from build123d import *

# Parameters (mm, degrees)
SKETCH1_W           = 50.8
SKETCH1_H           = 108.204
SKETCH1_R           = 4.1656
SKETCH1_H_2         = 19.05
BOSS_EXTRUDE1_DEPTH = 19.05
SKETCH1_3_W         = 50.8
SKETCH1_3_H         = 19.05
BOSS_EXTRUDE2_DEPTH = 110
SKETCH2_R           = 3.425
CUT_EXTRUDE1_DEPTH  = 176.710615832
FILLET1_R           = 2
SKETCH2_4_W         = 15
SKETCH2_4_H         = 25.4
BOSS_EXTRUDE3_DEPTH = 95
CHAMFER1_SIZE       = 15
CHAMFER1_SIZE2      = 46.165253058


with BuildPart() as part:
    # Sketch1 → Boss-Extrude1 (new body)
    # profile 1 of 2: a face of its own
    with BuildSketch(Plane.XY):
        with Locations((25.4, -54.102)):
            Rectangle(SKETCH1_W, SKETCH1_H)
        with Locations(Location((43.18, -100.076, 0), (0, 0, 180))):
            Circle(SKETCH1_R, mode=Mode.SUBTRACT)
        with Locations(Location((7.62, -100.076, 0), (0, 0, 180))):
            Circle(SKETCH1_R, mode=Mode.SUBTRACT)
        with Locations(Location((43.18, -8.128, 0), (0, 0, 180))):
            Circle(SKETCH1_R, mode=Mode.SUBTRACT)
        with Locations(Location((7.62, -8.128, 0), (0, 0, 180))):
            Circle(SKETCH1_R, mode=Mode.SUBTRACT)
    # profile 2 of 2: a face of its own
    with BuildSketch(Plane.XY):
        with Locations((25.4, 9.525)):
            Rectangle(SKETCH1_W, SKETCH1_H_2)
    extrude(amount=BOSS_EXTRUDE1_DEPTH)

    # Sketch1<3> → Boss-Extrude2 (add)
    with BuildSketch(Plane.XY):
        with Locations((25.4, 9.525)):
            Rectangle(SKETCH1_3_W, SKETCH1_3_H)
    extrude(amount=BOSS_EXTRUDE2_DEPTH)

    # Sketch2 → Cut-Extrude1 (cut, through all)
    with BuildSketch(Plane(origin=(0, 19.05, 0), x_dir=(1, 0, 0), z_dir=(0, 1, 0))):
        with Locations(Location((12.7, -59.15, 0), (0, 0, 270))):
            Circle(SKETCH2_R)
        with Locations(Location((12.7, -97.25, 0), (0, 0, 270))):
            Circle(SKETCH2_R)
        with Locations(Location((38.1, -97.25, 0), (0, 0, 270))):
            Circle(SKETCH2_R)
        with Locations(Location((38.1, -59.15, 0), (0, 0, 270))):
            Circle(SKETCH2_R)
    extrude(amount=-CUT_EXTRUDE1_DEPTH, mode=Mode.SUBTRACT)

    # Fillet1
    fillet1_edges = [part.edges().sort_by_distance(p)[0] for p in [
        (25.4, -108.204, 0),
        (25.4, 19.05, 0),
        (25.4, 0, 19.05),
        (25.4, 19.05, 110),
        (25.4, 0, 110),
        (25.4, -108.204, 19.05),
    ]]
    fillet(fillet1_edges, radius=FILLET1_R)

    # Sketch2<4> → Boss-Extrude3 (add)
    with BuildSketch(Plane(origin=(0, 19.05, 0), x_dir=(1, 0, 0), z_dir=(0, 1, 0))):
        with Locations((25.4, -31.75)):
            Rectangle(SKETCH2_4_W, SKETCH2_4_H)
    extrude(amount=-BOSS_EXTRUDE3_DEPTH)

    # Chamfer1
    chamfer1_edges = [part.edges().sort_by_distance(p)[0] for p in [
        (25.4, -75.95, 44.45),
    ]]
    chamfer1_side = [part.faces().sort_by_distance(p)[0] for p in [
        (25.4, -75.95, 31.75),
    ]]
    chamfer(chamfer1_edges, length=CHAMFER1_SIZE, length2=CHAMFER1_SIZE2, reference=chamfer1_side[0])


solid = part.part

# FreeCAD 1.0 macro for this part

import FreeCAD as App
import Part
import Sketcher
Q = App.Units.Quantity


def edges_at(feature, points):
    """Names of the edges that pass closest to the given points."""
    edges = feature.Shape.Edges
    near = lambda p: min(range(len(edges)), key=lambda i: edges[i].distToShape(Part.Vertex(*p))[0])
    return sorted({f"Edge{near(p) + 1}" for p in points})


def add_polygon(sketch, points):
    """Adds a closed chain of lines whose ends are joined by coincident constraints."""
    first, n = sketch.GeometryCount, len(points)
    for a, b in zip(points, points[1:] + points[:1]):
        sketch.addGeometry(Part.LineSegment(App.Vector(*a, 0), App.Vector(*b, 0)), False)
    for i in range(n):
        sketch.addConstraint(Sketcher.Constraint("Coincident", first + i, 2, first + (i + 1) % n, 1))

doc = App.newDocument("Part")
params = doc.addObject("Spreadsheet::Sheet", "Params")
for row, (alias, value) in enumerate([
    ("sketch1_width", "2 in"),
    ("sketch1_diameter", "0.328 in"),
    ("sketch1_height", "5.01 in"),
    ("pad1_length", "0.75 in"),
    ("sketch2_width", "2 in"),
    ("sketch2_height", "0.75 in"),
    ("pad2_length", "110 mm"),
    ("fillet_radius", "2 mm"),
    ("sketch4_height", "1 in"),
    ("pad3_length", "95 mm"),
    ("chamfer_size", "15 mm"),
    ("chamfer_size2", "46.165253 mm"),
], start=1):
    params.set(f"A{row}", alias)
    params.set(f"B{row}", "=" + value)
    params.setAlias(f"B{row}", alias)

body = doc.addObject("PartDesign::Body", "Body")

# Sketch on XY plane
sketch1 = body.newObject("Sketcher::SketchObject", "Sketch")
sketch1.AttachmentSupport = (doc.getObject("XY_Plane"), [""])
sketch1.MapMode = "FlatFace"
add_polygon(sketch1, [(0, -108.204), (50.8, -108.204), (50.8, 19.05), (0, 19.05)])  # lines 0-3
sketch1.addGeometry(Part.Circle(App.Vector(7.62, -100.076, 0), App.Vector(0, 0, 1), 4.1656), False)  # 4
sketch1.addGeometry(Part.Circle(App.Vector(43.18, -100.076, 0), App.Vector(0, 0, 1), 4.1656), False)  # 5
sketch1.addGeometry(Part.Circle(App.Vector(7.62, -8.128, 0), App.Vector(0, 0, 1), 4.1656), False)  # 6
sketch1.addGeometry(Part.Circle(App.Vector(43.18, -8.128, 0), App.Vector(0, 0, 1), 4.1656), False)  # 7
sketch1.addConstraint([
    Sketcher.Constraint("Horizontal", 0),
    Sketcher.Constraint("Vertical", 1),
    Sketcher.Constraint("Horizontal", 2),
    Sketcher.Constraint("Vertical", 3),
    Sketcher.Constraint("Equal", 4, 5),
    Sketcher.Constraint("Equal", 5, 6),
    Sketcher.Constraint("Equal", 6, 7),
    Sketcher.Constraint("PointOnObject", 2, 2, -2),
    Sketcher.Constraint("Horizontal", 4, 3, 5, 3),
    Sketcher.Constraint("Horizontal", 6, 3, 7, 3),
    Sketcher.Constraint("Vertical", 4, 3, 6, 3),
    Sketcher.Constraint("Vertical", 5, 3, 7, 3),
    Sketcher.Constraint("DistanceX", 0, 1, 0, 2, Q("2 in")),
    Sketcher.Constraint("Diameter", 4, Q("0.328 in")),
    Sketcher.Constraint("DistanceY", 1, 1, 1, 2, Q("5.01 in")),
    Sketcher.Constraint("DistanceX", -1, 1, 4, 3, Q("0.3 in")),
    Sketcher.Constraint("DistanceX", -1, 1, 5, 3, Q("1.7 in")),
    Sketcher.Constraint("DistanceY", 4, 3, -1, 1, Q("3.94 in")),
    Sketcher.Constraint("DistanceY", 6, 3, -1, 1, Q("0.32 in")),
    Sketcher.Constraint("DistanceY", 0, 2, -1, 1, Q("4.26 in")),
])
sketch1.setExpression("Constraints[16]", "Params.sketch1_width")
sketch1.setExpression("Constraints[17]", "Params.sketch1_diameter")
sketch1.setExpression("Constraints[18]", "Params.sketch1_height")
pad1 = body.newObject("PartDesign::Pad", "Pad")
pad1.Profile = sketch1
pad1.setExpression("Length", "Params.pad1_length")

# Sketch on XY plane
sketch2 = body.newObject("Sketcher::SketchObject", "Sketch001")
sketch2.AttachmentSupport = (doc.getObject("XY_Plane"), [""])
sketch2.MapMode = "FlatFace"
add_polygon(sketch2, [(0, 19.05), (0, 0), (50.8, 0), (50.8, 19.05)])  # lines 0-3
sketch2.addConstraint([
    Sketcher.Constraint("Vertical", 0),
    Sketcher.Constraint("Horizontal", 1),
    Sketcher.Constraint("Vertical", 2),
    Sketcher.Constraint("Horizontal", 3),
    Sketcher.Constraint("Coincident", 0, 2, -1, 1),
    Sketcher.Constraint("DistanceX", 1, 1, 1, 2, Q("2 in")),
    Sketcher.Constraint("DistanceY", 0, 2, 0, 1, Q("0.75 in")),
])
sketch2.setExpression("Constraints[9]", "Params.sketch2_width")
sketch2.setExpression("Constraints[10]", "Params.sketch2_height")
pad2 = body.newObject("PartDesign::Pad", "Pad001")
pad2.Profile = sketch2
pad2.setExpression("Length", "Params.pad2_length")

# Sketch on XZ plane
sketch3 = body.newObject("Sketcher::SketchObject", "Sketch002")
sketch3.AttachmentSupport = (doc.getObject("XZ_Plane"), [""])
sketch3.MapMode = "FlatFace"
sketch3.AttachmentOffset = App.Placement(App.Vector(0, 0, -0.75 * 25.4), App.Rotation())
sketch3.addGeometry([
    Part.Circle(App.Vector(12.7, 59.15, 0), App.Vector(0, 0, 1), 3.425),
    Part.Circle(App.Vector(12.7, 97.25, 0), App.Vector(0, 0, 1), 3.425),
    Part.Circle(App.Vector(38.1, 97.25, 0), App.Vector(0, 0, 1), 3.425),
    Part.Circle(App.Vector(38.1, 59.15, 0), App.Vector(0, 0, 1), 3.425),
], False)
sketch3.addConstraint([
    Sketcher.Constraint("Equal", 0, 1),
    Sketcher.Constraint("Equal", 1, 2),
    Sketcher.Constraint("Equal", 2, 3),
    Sketcher.Constraint("Horizontal", 1, 3, 2, 3),
    Sketcher.Constraint("Horizontal", 0, 3, 3, 3),
    Sketcher.Constraint("Vertical", 0, 3, 1, 3),
    Sketcher.Constraint("Vertical", 2, 3, 3, 3),
    Sketcher.Constraint("DistanceX", 1, 3, 2, 3, Q("1 in")),
    Sketcher.Constraint("DistanceX", -1, 1, 0, 3, Q("0.5 in")),
    Sketcher.Constraint("DistanceY", 0, 3, 1, 3, Q("1.5 in")),
    Sketcher.Constraint("Diameter", 0, Q("6.85 mm")),
    Sketcher.Constraint("DistanceY", -1, 1, 0, 3, Q("59.15 mm")),
])
pocket1 = body.newObject("PartDesign::Pocket", "Pocket")
pocket1.Profile = sketch3
pocket1.Type = "ThroughAll"
pocket1.Reversed = True
doc.recompute()

fillet = body.newObject("PartDesign::Fillet", "Fillet")
fillet.Base = (pocket1, edges_at(pocket1, [
    (25.4, -108.204, 0),
    (25.4, 19.05, 0),
    (25.4, 0, 19.05),
    (25.4, 19.05, 110),
    (25.4, 0, 110),
    (25.4, -108.204, 19.05),
]))
fillet.setExpression("Radius", "Params.fillet_radius")

# Sketch on XZ plane
sketch4 = body.newObject("Sketcher::SketchObject", "Sketch003")
sketch4.AttachmentSupport = (doc.getObject("XZ_Plane"), [""])
sketch4.MapMode = "FlatFace"
sketch4.AttachmentOffset = App.Placement(App.Vector(0, 0, -0.75 * 25.4), App.Rotation())
add_polygon(sketch4, [(17.9, 19.05), (17.9, 44.45), (32.9, 44.45), (32.9, 19.05)])  # lines 0-3
sketch4.addConstraint([
    Sketcher.Constraint("Vertical", 0),
    Sketcher.Constraint("Horizontal", 1),
    Sketcher.Constraint("Vertical", 2),
    Sketcher.Constraint("Horizontal", 3),
    Sketcher.Constraint("DistanceY", 0, 1, 0, 2, Q("1 in")),
    Sketcher.Constraint("DistanceY", -1, 1, 0, 2, Q("1.75 in")),
    Sketcher.Constraint("DistanceX", 1, 1, 1, 2, Q("15 mm")),
    Sketcher.Constraint("DistanceX", -1, 1, 0, 2, Q("17.9 mm")),
])
sketch4.setExpression("Constraints[8]", "Params.sketch4_height")
pad3 = body.newObject("PartDesign::Pad", "Pad002")
pad3.Profile = sketch4
pad3.setExpression("Length", "Params.pad3_length")
doc.recompute()

chamfer = body.newObject("PartDesign::Chamfer", "Chamfer")
chamfer.Base = (pad3, edges_at(pad3, [(25.4, -75.95, 44.45)]))
chamfer.ChamferType = "Two distances"
chamfer.setExpression("Size", "Params.chamfer_size")
chamfer.setExpression("Size2", "Params.chamfer_size2")

doc.recompute()
